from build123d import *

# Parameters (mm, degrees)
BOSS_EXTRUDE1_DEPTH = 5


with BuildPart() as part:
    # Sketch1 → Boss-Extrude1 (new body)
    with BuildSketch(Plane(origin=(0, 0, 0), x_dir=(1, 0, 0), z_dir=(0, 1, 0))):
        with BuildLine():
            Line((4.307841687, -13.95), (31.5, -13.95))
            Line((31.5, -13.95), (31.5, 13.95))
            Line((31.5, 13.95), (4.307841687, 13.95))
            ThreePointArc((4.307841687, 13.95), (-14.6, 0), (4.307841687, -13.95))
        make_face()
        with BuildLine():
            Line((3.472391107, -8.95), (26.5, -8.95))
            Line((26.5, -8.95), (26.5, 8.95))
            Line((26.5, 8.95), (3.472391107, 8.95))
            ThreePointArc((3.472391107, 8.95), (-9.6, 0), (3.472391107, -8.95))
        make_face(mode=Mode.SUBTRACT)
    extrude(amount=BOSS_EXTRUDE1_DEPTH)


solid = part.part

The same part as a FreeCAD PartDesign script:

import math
import FreeCAD as App
import Part
import Sketcher

doc = App.newDocument("Part")
body = doc.addObject("PartDesign::Body", "Body")

sketch1 = doc.addObject("Sketcher::SketchObject", "Sketch")
body.addObject(sketch1)
sketch1.AttachmentSupport = (doc.XZ_Plane, [""])
sketch1.MapMode = "FlatFace"
sketch1.addGeometry(Part.LineSegment(App.Vector(4.307842, 13.95, 0), App.Vector(31.5, 13.95, 0)), False)
sketch1.addGeometry(Part.LineSegment(App.Vector(31.5, 13.95, 0), App.Vector(31.5, -13.95, 0)), False)
sketch1.addGeometry(Part.LineSegment(App.Vector(31.5, -13.95, 0), App.Vector(4.307842, -13.95, 0)), False)
sketch1.addGeometry(Part.ArcOfCircle(Part.Circle(App.Vector(0, 0, 0), App.Vector(0, 0, 1), 14.6), math.radians(72.839006), math.radians(287.160994)), False)
sketch1.addGeometry(Part.LineSegment(App.Vector(26.5, 8.95, 0), App.Vector(3.472391, 8.95, 0)), False)
sketch1.addGeometry(Part.ArcOfCircle(Part.Circle(App.Vector(0, 0, 0), App.Vector(0, 0, 1), 9.6), math.radians(68.794909), math.radians(291.205091)), False)
sketch1.addGeometry(Part.LineSegment(App.Vector(3.472391, -8.95, 0), App.Vector(26.5, -8.95, 0)), False)
sketch1.addGeometry(Part.LineSegment(App.Vector(26.5, -8.95, 0), App.Vector(26.5, 8.95, 0)), False)
sketch1.addConstraint(Sketcher.Constraint("Coincident", 0, 2, 1, 1))
sketch1.addConstraint(Sketcher.Constraint("Coincident", 1, 2, 2, 1))
sketch1.addConstraint(Sketcher.Constraint("Coincident", 2, 2, 3, 2))
sketch1.addConstraint(Sketcher.Constraint("Coincident", 3, 1, 0, 1))
sketch1.addConstraint(Sketcher.Constraint("Coincident", 4, 2, 5, 1))
sketch1.addConstraint(Sketcher.Constraint("Coincident", 5, 2, 6, 1))
sketch1.addConstraint(Sketcher.Constraint("Coincident", 6, 2, 7, 1))
sketch1.addConstraint(Sketcher.Constraint("Coincident", 7, 2, 4, 1))
sketch1.addConstraint(Sketcher.Constraint("Horizontal", 0))
sketch1.addConstraint(Sketcher.Constraint("Vertical", 1))
sketch1.addConstraint(Sketcher.Constraint("Horizontal", 2))
sketch1.addConstraint(Sketcher.Constraint("Horizontal", 4))
sketch1.addConstraint(Sketcher.Constraint("Horizontal", 6))
sketch1.addConstraint(Sketcher.Constraint("Vertical", 7))
sketch1.addConstraint(Sketcher.Constraint("Coincident", 3, 3, -1, 1))
sketch1.addConstraint(Sketcher.Constraint("Coincident", 5, 3, -1, 1))
sketch1.addConstraint(Sketcher.Constraint("Vertical", 2, 2, 3, 1))
sketch1.addConstraint(Sketcher.Constraint("Vertical", 4, 2, 5, 2))
sketch1.addConstraint(Sketcher.Constraint("Radius", 3, 14.6))
sketch1.addConstraint(Sketcher.Constraint("Radius", 5, 9.6))
sketch1.addConstraint(Sketcher.Constraint("DistanceY", 1, 2, 1, 1, 27.9))
sketch1.addConstraint(Sketcher.Constraint("DistanceY", 7, 1, 7, 2, 17.9))
sketch1.addConstraint(Sketcher.Constraint("DistanceX", 6, 2, 1, 2, 5.0))
sketch1.addConstraint(Sketcher.Constraint("DistanceX", -1, 1, 0, 2, 31.5))
pad1 = doc.addObject("PartDesign::Pad", "Pad")
body.addObject(pad1)
pad1.Profile = sketch1
pad1.Length = 5
pad1.Reversed = True

doc.recompute()
